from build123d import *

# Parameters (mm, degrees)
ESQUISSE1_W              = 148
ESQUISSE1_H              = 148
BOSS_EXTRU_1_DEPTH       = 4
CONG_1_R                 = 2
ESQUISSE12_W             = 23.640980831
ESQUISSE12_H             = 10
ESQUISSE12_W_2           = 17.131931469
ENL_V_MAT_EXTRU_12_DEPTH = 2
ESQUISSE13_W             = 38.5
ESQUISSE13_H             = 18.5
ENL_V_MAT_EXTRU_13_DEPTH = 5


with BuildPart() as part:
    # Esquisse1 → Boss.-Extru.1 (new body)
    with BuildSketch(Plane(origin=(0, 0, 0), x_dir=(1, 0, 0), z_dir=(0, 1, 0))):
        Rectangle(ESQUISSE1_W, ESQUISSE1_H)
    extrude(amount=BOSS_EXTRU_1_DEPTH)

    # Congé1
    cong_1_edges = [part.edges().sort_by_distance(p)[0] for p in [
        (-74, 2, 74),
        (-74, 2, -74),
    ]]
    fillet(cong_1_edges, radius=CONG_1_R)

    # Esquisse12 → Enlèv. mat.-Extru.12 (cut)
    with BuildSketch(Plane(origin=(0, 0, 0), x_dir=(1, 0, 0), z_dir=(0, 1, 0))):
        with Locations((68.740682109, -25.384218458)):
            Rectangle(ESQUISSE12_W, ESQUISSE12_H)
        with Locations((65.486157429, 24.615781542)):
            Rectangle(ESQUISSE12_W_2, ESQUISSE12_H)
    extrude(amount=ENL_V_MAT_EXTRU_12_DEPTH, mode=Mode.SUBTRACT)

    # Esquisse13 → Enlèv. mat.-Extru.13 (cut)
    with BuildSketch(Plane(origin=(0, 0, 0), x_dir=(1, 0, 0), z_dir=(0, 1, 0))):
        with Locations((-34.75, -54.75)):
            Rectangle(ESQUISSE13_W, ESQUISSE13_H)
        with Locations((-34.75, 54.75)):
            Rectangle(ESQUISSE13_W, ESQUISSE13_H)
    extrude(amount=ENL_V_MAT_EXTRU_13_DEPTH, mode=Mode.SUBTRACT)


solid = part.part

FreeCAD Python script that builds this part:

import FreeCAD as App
import Part
import Sketcher
from FreeCAD import Vector
Q = App.Units.Quantity


def edges_at(feature, points):
    """Names of the edges that pass closest to the given points."""
    edges = feature.Shape.Edges
    near = lambda p: min(range(len(edges)), key=lambda i: edges[i].distToShape(Part.Vertex(*p))[0])
    return sorted({f"Edge{near(p) + 1}" for p in points})

doc = App.newDocument("Part")
params = doc.addObject("Spreadsheet::Sheet", "Params")
for row, (alias, value) in enumerate([
    ("sketch1_width", "148 mm"),
    ("pad1_length", "4 mm"),
    ("fillet_radius", "2 mm"),
    ("sketch2_height", "10 mm"),
    ("pocket1_length", "2 mm"),
    ("sketch3_width", "38.5 mm"),
    ("sketch3_height", "18.5 mm"),
    ("pocket2_length", "5 mm"),
], start=1):
    params.set(f"A{row}", alias)
    params.set(f"B{row}", "=" + value)
    params.setAlias(f"B{row}", alias)

body = doc.addObject("PartDesign::Body", "Body")

sketch1 = doc.addObject("Sketcher::SketchObject", "Sketch")
body.addObject(sketch1)
sketch1.AttachmentSupport = (doc.XZ_Plane, [""])
sketch1.MapMode = "FlatFace"
sketch1.addGeometry(Part.LineSegment(Vector(-74, -74, 0), Vector(-74, 74, 0)), False)
sketch1.addGeometry(Part.LineSegment(Vector(-74, 74, 0), Vector(74, 74, 0)), False)
sketch1.addGeometry(Part.LineSegment(Vector(74, 74, 0), Vector(74, -74, 0)), False)
sketch1.addGeometry(Part.LineSegment(Vector(74, -74, 0), Vector(-74, -74, 0)), False)
sketch1.addConstraint(Sketcher.Constraint("Coincident", 0, 2, 1, 1))
sketch1.addConstraint(Sketcher.Constraint("Coincident", 1, 2, 2, 1))
sketch1.addConstraint(Sketcher.Constraint("Coincident", 2, 2, 3, 1))
sketch1.addConstraint(Sketcher.Constraint("Coincident", 3, 2, 0, 1))
sketch1.addConstraint(Sketcher.Constraint("Vertical", 0))
sketch1.addConstraint(Sketcher.Constraint("Horizontal", 1))
sketch1.addConstraint(Sketcher.Constraint("Vertical", 2))
sketch1.addConstraint(Sketcher.Constraint("Horizontal", 3))
sketch1.addConstraint(Sketcher.Constraint("Symmetric", 0, 2, 2, 2, -1, 1))
sketch1.addConstraint(Sketcher.Constraint("Equal", 3, 0))
sketch1.addConstraint(Sketcher.Constraint("DistanceX", 1, 1, 1, 2, Q("148 mm")))
sketch1.setExpression("Constraints[10]", "Params.sketch1_width")
pad1 = doc.addObject("PartDesign::Pad", "Pad")
body.addObject(pad1)
pad1.Profile = sketch1
pad1.setExpression("Length", "Params.pad1_length")
pad1.Reversed = True
doc.recompute()

fillet = doc.addObject("PartDesign::Fillet", "Fillet")
body.addObject(fillet)
fillet.Base = (pad1, edges_at(pad1, [(-74, 2, 74), (-74, 2, -74)]))
fillet.setExpression("Radius", "Params.fillet_radius")

sketch2 = doc.addObject("Sketcher::SketchObject", "Sketch001")
body.addObject(sketch2)
sketch2.AttachmentSupport = (doc.XZ_Plane, [""])
sketch2.MapMode = "FlatFace"
sketch2.addGeometry(Part.LineSegment(Vector(57, 20, 0), Vector(57, 30, 0)), False)
sketch2.addGeometry(Part.LineSegment(Vector(57, 30, 0), Vector(81, 30, 0)), False)
sketch2.addGeometry(Part.LineSegment(Vector(81, 30, 0), Vector(81, 20, 0)), False)
sketch2.addGeometry(Part.LineSegment(Vector(81, 20, 0), Vector(57, 20, 0)), False)
sketch2.addGeometry(Part.LineSegment(Vector(57, -30, 0), Vector(57, -20, 0)), False)
sketch2.addGeometry(Part.LineSegment(Vector(57, -20, 0), Vector(74, -20, 0)), False)
sketch2.addGeometry(Part.LineSegment(Vector(74, -20, 0), Vector(74, -30, 0)), False)
sketch2.addGeometry(Part.LineSegment(Vector(74, -30, 0), Vector(57, -30, 0)), False)
sketch2.addConstraint(Sketcher.Constraint("Coincident", 0, 2, 1, 1))
sketch2.addConstraint(Sketcher.Constraint("Coincident", 1, 2, 2, 1))
sketch2.addConstraint(Sketcher.Constraint("Coincident", 2, 2, 3, 1))
sketch2.addConstraint(Sketcher.Constraint("Coincident", 3, 2, 0, 1))
sketch2.addConstraint(Sketcher.Constraint("Coincident", 4, 2, 5, 1))
sketch2.addConstraint(Sketcher.Constraint("Coincident", 5, 2, 6, 1))
sketch2.addConstraint(Sketcher.Constraint("Coincident", 6, 2, 7, 1))
sketch2.addConstraint(Sketcher.Constraint("Coincident", 7, 2, 4, 1))
sketch2.addConstraint(Sketcher.Constraint("Vertical", 0))
sketch2.addConstraint(Sketcher.Constraint("Horizontal", 1))
sketch2.addConstraint(Sketcher.Constraint("Vertical", 2))
sketch2.addConstraint(Sketcher.Constraint("Horizontal", 3))
sketch2.addConstraint(Sketcher.Constraint("Vertical", 4))
sketch2.addConstraint(Sketcher.Constraint("Horizontal", 5))
sketch2.addConstraint(Sketcher.Constraint("Vertical", 6))
sketch2.addConstraint(Sketcher.Constraint("Horizontal", 7))
sketch2.addConstraint(Sketcher.Constraint("Vertical", 3, 2, 4, 2))
sketch2.addConstraint(Sketcher.Constraint("Equal", 2, 4))
sketch2.addConstraint(Sketcher.Constraint("DistanceY", 0, 1, 0, 2, Q("10 mm")))
sketch2.addConstraint(Sketcher.Constraint("DistanceY", 4, 2, 3, 2, Q("40 mm")))
sketch2.addConstraint(Sketcher.Constraint("DistanceX", 1, 1, 1, 2, Q("23.640981 mm")))
sketch2.addConstraint(Sketcher.Constraint("DistanceX", 5, 1, 5, 2, Q("17.131931 mm")))
sketch2.addConstraint(Sketcher.Constraint("DistanceX", -1, 1, 0, 2, Q("56.920192 mm")))
sketch2.addConstraint(Sketcher.Constraint("DistanceY", -1, 1, 0, 2, Q("30.384218 mm")))
sketch2.setExpression("Constraints[18]", "Params.sketch2_height")
pocket1 = doc.addObject("PartDesign::Pocket", "Pocket")
body.addObject(pocket1)
pocket1.Profile = sketch2
pocket1.setExpression("Length", "Params.pocket1_length")

sketch3 = doc.addObject("Sketcher::SketchObject", "Sketch002")
body.addObject(sketch3)
sketch3.AttachmentSupport = (doc.XZ_Plane, [""])
sketch3.MapMode = "FlatFace"
sketch3.addGeometry(Part.LineSegment(Vector(-54, 46, 0), Vector(-54, 64, 0)), False)
sketch3.addGeometry(Part.LineSegment(Vector(-54, 64, 0), Vector(-16, 64, 0)), False)
sketch3.addGeometry(Part.LineSegment(Vector(-16, 64, 0), Vector(-16, 46, 0)), False)
sketch3.addGeometry(Part.LineSegment(Vector(-16, 46, 0), Vector(-54, 46, 0)), False)
sketch3.addGeometry(Part.LineSegment(Vector(-54, -64, 0), Vector(-54, -46, 0)), False)
sketch3.addGeometry(Part.LineSegment(Vector(-54, -46, 0), Vector(-16, -46, 0)), False)
sketch3.addGeometry(Part.LineSegment(Vector(-16, -46, 0), Vector(-16, -64, 0)), False)
sketch3.addGeometry(Part.LineSegment(Vector(-16, -64, 0), Vector(-54, -64, 0)), False)
sketch3.addConstraint(Sketcher.Constraint("Coincident", 0, 2, 1, 1))
sketch3.addConstraint(Sketcher.Constraint("Coincident", 1, 2, 2, 1))
sketch3.addConstraint(Sketcher.Constraint("Coincident", 2, 2, 3, 1))
sketch3.addConstraint(Sketcher.Constraint("Coincident", 3, 2, 0, 1))
sketch3.addConstraint(Sketcher.Constraint("Coincident", 4, 2, 5, 1))
sketch3.addConstraint(Sketcher.Constraint("Coincident", 5, 2, 6, 1))
sketch3.addConstraint(Sketcher.Constraint("Coincident", 6, 2, 7, 1))
sketch3.addConstraint(Sketcher.Constraint("Coincident", 7, 2, 4, 1))
sketch3.addConstraint(Sketcher.Constraint("Vertical", 0))
sketch3.addConstraint(Sketcher.Constraint("Horizontal", 1))
sketch3.addConstraint(Sketcher.Constraint("Vertical", 2))
sketch3.addConstraint(Sketcher.Constraint("Horizontal", 3))
sketch3.addConstraint(Sketcher.Constraint("Vertical", 4))
sketch3.addConstraint(Sketcher.Constraint("Horizontal", 5))
sketch3.addConstraint(Sketcher.Constraint("Vertical", 6))
sketch3.addConstraint(Sketcher.Constraint("Horizontal", 7))
sketch3.addConstraint(Sketcher.Constraint("Symmetric", 3, 2, 4, 2, -1))
sketch3.addConstraint(Sketcher.Constraint("Symmetric", 1, 2, 6, 2, -1))
sketch3.addConstraint(Sketcher.Constraint("DistanceX", 1, 1, 1, 2, Q("38.5 mm")))
sketch3.addConstraint(Sketcher.Constraint("DistanceY", 0, 1, 0, 2, Q("18.5 mm")))
sketch3.addConstraint(Sketcher.Constraint("DistanceX", 0, 2, -1, 1, Q("54 mm")))
sketch3.addConstraint(Sketcher.Constraint("DistanceY", -1, 1, 0, 2, Q("64 mm")))
sketch3.setExpression("Constraints[18]", "Params.sketch3_width")
sketch3.setExpression("Constraints[19]", "Params.sketch3_height")
pocket2 = doc.addObject("PartDesign::Pocket", "Pocket001")
body.addObject(pocket2)
pocket2.Profile = sketch3
pocket2.setExpression("Length", "Params.pocket2_length")

doc.recompute()
